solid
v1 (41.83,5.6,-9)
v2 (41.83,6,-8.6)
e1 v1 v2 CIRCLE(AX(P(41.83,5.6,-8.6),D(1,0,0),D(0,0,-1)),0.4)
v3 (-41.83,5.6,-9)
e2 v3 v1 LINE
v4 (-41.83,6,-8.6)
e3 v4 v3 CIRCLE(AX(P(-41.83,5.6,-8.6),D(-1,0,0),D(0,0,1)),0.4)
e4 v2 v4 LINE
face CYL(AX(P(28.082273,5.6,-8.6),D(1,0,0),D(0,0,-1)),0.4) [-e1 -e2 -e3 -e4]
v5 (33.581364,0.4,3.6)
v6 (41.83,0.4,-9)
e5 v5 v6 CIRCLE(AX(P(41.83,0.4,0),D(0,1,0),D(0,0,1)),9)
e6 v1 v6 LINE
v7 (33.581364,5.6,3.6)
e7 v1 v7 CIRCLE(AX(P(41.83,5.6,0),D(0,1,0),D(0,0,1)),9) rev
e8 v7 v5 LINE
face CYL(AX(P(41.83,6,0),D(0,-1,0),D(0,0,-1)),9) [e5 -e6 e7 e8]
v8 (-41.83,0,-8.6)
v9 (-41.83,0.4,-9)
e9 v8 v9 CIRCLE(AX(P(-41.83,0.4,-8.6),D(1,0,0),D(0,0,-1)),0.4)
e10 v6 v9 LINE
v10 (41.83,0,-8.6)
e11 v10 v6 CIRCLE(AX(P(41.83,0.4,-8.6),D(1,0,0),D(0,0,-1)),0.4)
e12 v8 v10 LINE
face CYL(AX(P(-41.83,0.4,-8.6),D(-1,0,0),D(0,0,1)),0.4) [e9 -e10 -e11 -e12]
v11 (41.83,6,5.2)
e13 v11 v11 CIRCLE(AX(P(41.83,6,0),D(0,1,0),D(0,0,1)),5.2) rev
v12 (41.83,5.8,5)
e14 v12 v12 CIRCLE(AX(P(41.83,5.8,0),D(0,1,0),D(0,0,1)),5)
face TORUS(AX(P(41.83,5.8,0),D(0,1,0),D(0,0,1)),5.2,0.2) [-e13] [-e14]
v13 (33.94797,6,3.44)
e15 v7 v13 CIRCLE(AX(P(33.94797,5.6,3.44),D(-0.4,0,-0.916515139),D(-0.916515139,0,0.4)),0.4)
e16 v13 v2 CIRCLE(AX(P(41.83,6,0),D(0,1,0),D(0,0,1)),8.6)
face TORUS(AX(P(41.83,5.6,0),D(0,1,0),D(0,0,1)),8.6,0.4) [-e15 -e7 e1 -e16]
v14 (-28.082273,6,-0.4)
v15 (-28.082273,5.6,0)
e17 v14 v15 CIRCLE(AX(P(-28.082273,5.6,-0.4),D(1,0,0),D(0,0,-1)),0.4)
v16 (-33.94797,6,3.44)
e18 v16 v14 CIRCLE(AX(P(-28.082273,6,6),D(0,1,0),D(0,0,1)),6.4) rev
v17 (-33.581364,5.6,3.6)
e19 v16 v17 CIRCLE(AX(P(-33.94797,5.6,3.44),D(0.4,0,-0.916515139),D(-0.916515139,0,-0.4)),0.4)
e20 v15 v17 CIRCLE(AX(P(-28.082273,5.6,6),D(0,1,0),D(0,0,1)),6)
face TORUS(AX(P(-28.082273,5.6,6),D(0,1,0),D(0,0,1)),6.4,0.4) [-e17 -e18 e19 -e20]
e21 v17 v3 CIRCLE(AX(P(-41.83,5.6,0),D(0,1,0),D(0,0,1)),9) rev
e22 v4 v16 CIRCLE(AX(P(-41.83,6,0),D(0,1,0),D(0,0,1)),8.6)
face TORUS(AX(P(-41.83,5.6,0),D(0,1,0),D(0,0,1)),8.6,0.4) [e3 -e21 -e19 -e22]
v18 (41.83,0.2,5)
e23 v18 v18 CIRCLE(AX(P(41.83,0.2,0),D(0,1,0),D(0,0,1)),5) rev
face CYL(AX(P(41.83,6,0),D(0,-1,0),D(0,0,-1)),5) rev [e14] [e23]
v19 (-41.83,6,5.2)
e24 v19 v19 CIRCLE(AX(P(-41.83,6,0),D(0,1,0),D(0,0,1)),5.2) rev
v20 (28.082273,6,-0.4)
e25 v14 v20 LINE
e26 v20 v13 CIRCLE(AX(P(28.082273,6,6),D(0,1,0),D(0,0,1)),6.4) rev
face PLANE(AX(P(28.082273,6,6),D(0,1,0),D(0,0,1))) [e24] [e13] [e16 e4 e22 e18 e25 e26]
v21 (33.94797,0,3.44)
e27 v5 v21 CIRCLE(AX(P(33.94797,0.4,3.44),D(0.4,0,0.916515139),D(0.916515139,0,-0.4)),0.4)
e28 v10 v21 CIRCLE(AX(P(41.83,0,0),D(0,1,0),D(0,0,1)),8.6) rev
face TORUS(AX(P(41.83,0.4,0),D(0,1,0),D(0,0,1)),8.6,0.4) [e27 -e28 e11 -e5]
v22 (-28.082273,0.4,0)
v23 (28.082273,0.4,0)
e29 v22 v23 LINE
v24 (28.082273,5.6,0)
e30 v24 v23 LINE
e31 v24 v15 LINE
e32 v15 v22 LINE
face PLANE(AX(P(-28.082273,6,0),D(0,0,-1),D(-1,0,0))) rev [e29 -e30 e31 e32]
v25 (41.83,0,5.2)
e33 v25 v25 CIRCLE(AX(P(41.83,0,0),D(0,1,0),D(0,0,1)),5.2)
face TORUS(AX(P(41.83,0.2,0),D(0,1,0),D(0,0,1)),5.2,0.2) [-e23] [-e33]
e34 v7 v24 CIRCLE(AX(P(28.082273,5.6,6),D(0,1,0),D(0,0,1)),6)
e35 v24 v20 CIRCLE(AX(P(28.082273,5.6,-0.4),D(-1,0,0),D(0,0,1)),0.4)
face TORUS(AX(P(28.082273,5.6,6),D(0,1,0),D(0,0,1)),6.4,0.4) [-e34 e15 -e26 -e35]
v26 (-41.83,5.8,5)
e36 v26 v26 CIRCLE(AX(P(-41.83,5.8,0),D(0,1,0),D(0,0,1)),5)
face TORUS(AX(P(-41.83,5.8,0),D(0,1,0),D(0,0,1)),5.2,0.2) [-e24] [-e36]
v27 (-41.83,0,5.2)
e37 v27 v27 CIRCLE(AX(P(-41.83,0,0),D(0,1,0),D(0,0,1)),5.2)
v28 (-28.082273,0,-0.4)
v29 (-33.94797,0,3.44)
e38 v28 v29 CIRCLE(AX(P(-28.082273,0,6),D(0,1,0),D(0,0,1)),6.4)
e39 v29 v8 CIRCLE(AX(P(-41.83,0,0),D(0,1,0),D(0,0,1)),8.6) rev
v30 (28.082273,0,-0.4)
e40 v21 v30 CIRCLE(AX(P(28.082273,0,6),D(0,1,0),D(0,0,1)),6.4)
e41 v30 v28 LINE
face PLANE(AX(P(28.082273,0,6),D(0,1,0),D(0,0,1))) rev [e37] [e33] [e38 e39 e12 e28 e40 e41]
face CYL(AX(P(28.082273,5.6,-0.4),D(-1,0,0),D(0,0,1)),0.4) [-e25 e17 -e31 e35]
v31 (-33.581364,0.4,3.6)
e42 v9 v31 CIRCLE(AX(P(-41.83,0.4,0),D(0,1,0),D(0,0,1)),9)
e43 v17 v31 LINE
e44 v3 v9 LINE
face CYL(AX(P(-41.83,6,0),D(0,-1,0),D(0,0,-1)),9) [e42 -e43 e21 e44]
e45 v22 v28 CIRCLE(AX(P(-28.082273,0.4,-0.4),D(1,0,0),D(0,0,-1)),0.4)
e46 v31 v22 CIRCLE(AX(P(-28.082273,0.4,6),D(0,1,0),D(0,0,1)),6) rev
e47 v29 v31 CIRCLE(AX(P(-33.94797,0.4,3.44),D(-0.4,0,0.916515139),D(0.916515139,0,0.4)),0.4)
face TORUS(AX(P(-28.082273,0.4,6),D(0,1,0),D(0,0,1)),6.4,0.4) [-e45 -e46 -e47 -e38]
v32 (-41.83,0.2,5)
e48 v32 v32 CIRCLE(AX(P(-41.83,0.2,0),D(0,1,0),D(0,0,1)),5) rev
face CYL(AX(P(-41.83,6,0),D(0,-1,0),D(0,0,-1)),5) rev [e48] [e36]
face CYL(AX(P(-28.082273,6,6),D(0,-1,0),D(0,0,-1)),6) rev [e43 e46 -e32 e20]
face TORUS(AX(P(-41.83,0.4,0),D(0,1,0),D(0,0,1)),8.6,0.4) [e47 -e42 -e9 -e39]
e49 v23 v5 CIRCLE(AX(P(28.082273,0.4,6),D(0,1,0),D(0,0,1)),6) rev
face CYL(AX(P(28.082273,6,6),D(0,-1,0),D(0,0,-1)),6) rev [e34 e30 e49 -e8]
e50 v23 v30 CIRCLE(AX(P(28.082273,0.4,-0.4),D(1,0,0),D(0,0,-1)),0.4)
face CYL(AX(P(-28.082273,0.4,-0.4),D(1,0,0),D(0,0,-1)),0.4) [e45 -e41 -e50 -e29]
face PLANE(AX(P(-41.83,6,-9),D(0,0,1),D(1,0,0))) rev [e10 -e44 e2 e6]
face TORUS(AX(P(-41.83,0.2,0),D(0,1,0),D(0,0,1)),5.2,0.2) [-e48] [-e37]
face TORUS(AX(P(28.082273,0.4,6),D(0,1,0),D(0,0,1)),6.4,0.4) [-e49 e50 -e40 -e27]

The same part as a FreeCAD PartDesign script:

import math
import FreeCAD as App
import Part
import Sketcher
Q = App.Units.Quantity


def edges_at(feature, points):
    """Names of the edges that pass closest to the given points."""
    edges = feature.Shape.Edges
    near = lambda p: min(range(len(edges)), key=lambda i: edges[i].distToShape(Part.Vertex(*p))[0])
    return sorted({f"Edge{near(p) + 1}" for p in points})

doc = App.newDocument("Part")
body = doc.addObject("PartDesign::Body", "Body")

sketch1 = body.newObject("Sketcher::SketchObject", "Sketch")
sketch1.AttachmentSupport = (doc.getObject("XZ_Plane"), [""])
sketch1.MapMode = "FlatFace"
sketch1.addGeometry(Part.LineSegment(App.Vector(42, -9, 0), App.Vector(-42, -9, 0)), False)
sketch1.addGeometry(Part.ArcOfCircle(Part.Circle(App.Vector(-42, 0, 0), App.Vector(0, 0, 1), 9), math.radians(24), math.radians(270)), False)
sketch1.addGeometry(Part.ArcOfCircle(Part.Circle(App.Vector(-28, 6, 0), App.Vector(0, 0, 1), 6), math.radians(-156), math.radians(-90)), False)
sketch1.addGeometry(Part.LineSegment(App.Vector(-28, 0, 0), App.Vector(28, 0, 0)), False)
sketch1.addGeometry(Part.ArcOfCircle(Part.Circle(App.Vector(28, 6, 0), App.Vector(0, 0, 1), 6), math.radians(-90), math.radians(-24)), False)
sketch1.addGeometry(Part.ArcOfCircle(Part.Circle(App.Vector(42, 0, 0), App.Vector(0, 0, 1), 9), math.radians(-90), math.radians(156)), False)
sketch1.addGeometry(Part.Circle(App.Vector(42, 0, 0), App.Vector(0, 0, 1), 5), False)
sketch1.addGeometry(Part.Circle(App.Vector(-42, 0, 0), App.Vector(0, 0, 1), 5), False)
sketch1.addConstraint(Sketcher.Constraint("Tangent", 0, 2, 1, 2))
sketch1.addConstraint(Sketcher.Constraint("Tangent", 1, 1, 2, 1))
sketch1.addConstraint(Sketcher.Constraint("Tangent", 2, 2, 3, 1))
sketch1.addConstraint(Sketcher.Constraint("Tangent", 3, 2, 4, 1))
sketch1.addConstraint(Sketcher.Constraint("Tangent", 4, 2, 5, 2))
sketch1.addConstraint(Sketcher.Constraint("Tangent", 5, 1, 0, 1))
sketch1.addConstraint(Sketcher.Constraint("Horizontal", 0))
sketch1.addConstraint(Sketcher.Constraint("Horizontal", 3))
sketch1.addConstraint(Sketcher.Constraint("Coincident", 6, 3, 5, 3))
sketch1.addConstraint(Sketcher.Constraint("Coincident", 7, 3, 1, 3))
sketch1.addConstraint(Sketcher.Constraint("Equal", 2, 4))
sketch1.addConstraint(Sketcher.Constraint("Equal", 1, 5))
sketch1.addConstraint(Sketcher.Constraint("Equal", 6, 7))
sketch1.addConstraint(Sketcher.Constraint("Symmetric", 1, 3, 5, 3, -1, 1))
sketch1.addConstraint(Sketcher.Constraint("PointOnObject", 2, 2, -1))
sketch1.addConstraint(Sketcher.Constraint("Diameter", 6, Q("10 mm")))
sketch1.addConstraint(Sketcher.Constraint("Radius", 1, Q("9 mm")))
sketch1.addConstraint(Sketcher.Constraint("Radius", 2, Q("6 mm")))
sketch1.addConstraint(Sketcher.Constraint("DistanceX", 0, 2, 0, 1, Q("83.66 mm")))
pad1 = body.newObject("PartDesign::Pad", "Pad")
pad1.Profile = sketch1
pad1.Length = 6
pad1.Reversed = True
doc.recompute()

fillet = body.newObject("PartDesign::Fillet", "Fillet")
fillet.Base = (pad1, edges_at(pad1, [
    (-46.83, 0, 0),
    (-46.83, 6, 0),
    (36.83, 0, 0),
    (36.83, 6, 0),
]))
fillet.Radius = 0.2
doc.recompute()

fillet2 = body.newObject("PartDesign::Fillet", "Fillet001")
fillet2.Base = (fillet, edges_at(fillet, [
    (0, 6, -9),
    (-49.36, 6, 4.93),
    (-31.369, 6, 0.98),
    (0, 6, 0),
    (31.369, 6, 0.98),
    (0, 0, 0),
    (-31.369, 0, 0.98),
    (-49.36, 0, 4.93),
    (0, 0, -9),
    (49.36, 0, 4.93),
    (31.369, 0, 0.98),
    (49.36, 6, 4.93),
]))
fillet2.Radius = 0.4

doc.recompute()
